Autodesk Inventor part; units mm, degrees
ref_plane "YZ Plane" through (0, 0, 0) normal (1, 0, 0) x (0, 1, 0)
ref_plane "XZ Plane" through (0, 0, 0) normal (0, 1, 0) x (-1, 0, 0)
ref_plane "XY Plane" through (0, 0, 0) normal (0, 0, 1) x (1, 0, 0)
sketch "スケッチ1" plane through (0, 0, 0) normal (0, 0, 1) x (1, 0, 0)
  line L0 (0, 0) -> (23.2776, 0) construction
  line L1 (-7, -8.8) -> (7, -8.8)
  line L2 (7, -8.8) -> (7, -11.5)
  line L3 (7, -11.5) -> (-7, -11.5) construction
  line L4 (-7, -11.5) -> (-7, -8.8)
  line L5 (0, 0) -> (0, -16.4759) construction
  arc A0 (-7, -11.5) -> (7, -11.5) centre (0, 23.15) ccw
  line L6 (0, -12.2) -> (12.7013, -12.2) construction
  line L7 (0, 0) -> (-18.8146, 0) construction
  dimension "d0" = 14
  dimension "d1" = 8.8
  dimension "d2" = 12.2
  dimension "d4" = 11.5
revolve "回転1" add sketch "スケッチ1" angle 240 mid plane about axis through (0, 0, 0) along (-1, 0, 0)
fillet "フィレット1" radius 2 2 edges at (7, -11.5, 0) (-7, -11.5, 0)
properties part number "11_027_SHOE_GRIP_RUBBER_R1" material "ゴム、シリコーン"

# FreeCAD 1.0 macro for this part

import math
import FreeCAD as App
import Part
import Sketcher
from FreeCAD import Vector


def edges_at(feature, points):
    """Names of the edges that pass closest to the given points."""
    edges = feature.Shape.Edges
    near = lambda p: min(range(len(edges)), key=lambda i: edges[i].distToShape(Part.Vertex(*p))[0])
    return sorted({f"Edge{near(p) + 1}" for p in points})

doc = App.newDocument("Part")
body = doc.addObject("PartDesign::Body", "Body")

sketch1 = body.newObject("Sketcher::SketchObject", "Sketch")
sketch1.AttachmentSupport = (doc.getObject("XY_Plane"), [""])
sketch1.MapMode = "FlatFace"
sketch1.addGeometry([
    Part.LineSegment(Vector(7, -8.8, 0), Vector(-7, -8.8, 0)),
    Part.LineSegment(Vector(-7, -8.8, 0), Vector(-7, -11.5, 0)),
    Part.ArcOfCircle(Part.Circle(Vector(0, 23.1, 0), Vector(0, 0, 1), 35.4), math.radians(-101), math.radians(-79)),
    Part.LineSegment(Vector(7, -11.5, 0), Vector(7, -8.8, 0)),
], False)
sketch1.addConstraint([
    Sketcher.Constraint("Coincident", 0, 2, 1, 1),
    Sketcher.Constraint("Coincident", 1, 2, 2, 1),
    Sketcher.Constraint("Coincident", 2, 2, 3, 1),
    Sketcher.Constraint("Coincident", 3, 2, 0, 1),
    Sketcher.Constraint("Horizontal", 0),
    Sketcher.Constraint("Vertical", 1),
    Sketcher.Constraint("Vertical", 3),
    Sketcher.Constraint("Symmetric", 1, 2, 2, 2, -2),
    Sketcher.Constraint("DistanceX", 0, 2, 0, 1, 14.0),
    Sketcher.Constraint("DistanceY", 0, 2, -1, 1, 8.8),
    Sketcher.Constraint("DistanceY", 1, 2, -1, 1, 11.5),
    Sketcher.Constraint("Radius", 2, 35.35),
])
revolution = body.newObject("PartDesign::Revolution", "Revolution")
revolution.Profile = sketch1
revolution.ReferenceAxis = (sketch1, ["H_Axis"])
revolution.Angle = 240
revolution.Midplane = True
doc.recompute()

fillet = body.newObject("PartDesign::Fillet", "Fillet")
fillet.Base = (revolution, edges_at(revolution, [(7, -11.5, 0), (-7, -11.5, 0)]))
fillet.Radius = 2

doc.recompute()
